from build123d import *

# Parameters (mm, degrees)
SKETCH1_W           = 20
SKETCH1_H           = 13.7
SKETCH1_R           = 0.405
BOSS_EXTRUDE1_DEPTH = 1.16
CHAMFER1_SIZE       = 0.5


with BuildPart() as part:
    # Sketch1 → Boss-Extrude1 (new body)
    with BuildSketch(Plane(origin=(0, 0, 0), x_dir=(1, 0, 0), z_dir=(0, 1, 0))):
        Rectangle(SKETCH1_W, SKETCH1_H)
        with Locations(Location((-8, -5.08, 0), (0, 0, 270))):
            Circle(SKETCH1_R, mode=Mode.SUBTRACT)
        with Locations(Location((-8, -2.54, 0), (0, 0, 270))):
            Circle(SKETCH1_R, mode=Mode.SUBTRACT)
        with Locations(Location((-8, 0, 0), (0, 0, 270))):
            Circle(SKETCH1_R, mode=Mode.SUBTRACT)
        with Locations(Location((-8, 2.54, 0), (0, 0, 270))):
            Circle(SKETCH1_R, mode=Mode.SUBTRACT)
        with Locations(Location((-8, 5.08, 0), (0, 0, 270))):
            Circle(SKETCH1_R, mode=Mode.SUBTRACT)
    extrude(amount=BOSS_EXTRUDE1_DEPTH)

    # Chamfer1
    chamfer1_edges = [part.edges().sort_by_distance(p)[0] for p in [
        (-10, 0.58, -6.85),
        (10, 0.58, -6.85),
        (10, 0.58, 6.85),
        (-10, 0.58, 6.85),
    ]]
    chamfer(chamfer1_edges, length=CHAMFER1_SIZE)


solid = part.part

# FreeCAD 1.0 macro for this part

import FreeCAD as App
import Part
import Sketcher
from FreeCAD import Vector


def edges_at(feature, points):
    """Names of the edges that pass closest to the given points."""
    edges = feature.Shape.Edges
    near = lambda p: min(range(len(edges)), key=lambda i: edges[i].distToShape(Part.Vertex(*p))[0])
    return sorted({f"Edge{near(p) + 1}" for p in points})


def add_polygon(sketch, points):
    """Adds a closed chain of lines whose ends are joined by coincident constraints."""
    first, n = sketch.GeometryCount, len(points)
    for a, b in zip(points, points[1:] + points[:1]):
        sketch.addGeometry(Part.LineSegment(App.Vector(*a, 0), App.Vector(*b, 0)), False)
    for i in range(n):
        sketch.addConstraint(Sketcher.Constraint("Coincident", first + i, 2, first + (i + 1) % n, 1))

doc = App.newDocument("Part")
params = doc.addObject("Spreadsheet::Sheet", "Params")
for row, (alias, value) in enumerate([
    ("sketch1_diameter", "0.81 mm"),
    ("sketch1_width", "20 mm"),
    ("sketch1_height", "13.7 mm"),
    ("pad1_length", "1.16 mm"),
    ("chamfer_size", "0.5 mm"),
], start=1):
    params.set(f"A{row}", alias)
    params.set(f"B{row}", "=" + value)
    params.setAlias(f"B{row}", alias)

body = doc.addObject("PartDesign::Body", "Body")

# Sketch on XZ plane
sketch1 = body.newObject("Sketcher::SketchObject", "Sketch")
sketch1.AttachmentSupport = (doc.getObject("XZ_Plane"), [""])
sketch1.MapMode = "FlatFace"
add_polygon(sketch1, [(-10, -6.85), (-10, 6.85), (10, 6.85), (10, -6.85)])  # lines 0-3
sketch1.addGeometry(Part.Circle(Vector(-8, 5.08, 0), Vector(0, 0, 1), 0.41), False)  # 4
sketch1.addGeometry(Part.Circle(Vector(-8, 2.54, 0), Vector(0, 0, 1), 0.41), False)  # 5
sketch1.addGeometry(Part.Circle(Vector(-8, 0, 0), Vector(0, 0, 1), 0.41), False)  # 6
sketch1.addGeometry(Part.Circle(Vector(-8, -2.54, 0), Vector(0, 0, 1), 0.41), False)  # 7
sketch1.addGeometry(Part.Circle(Vector(-8, -5.08, 0), Vector(0, 0, 1), 0.41), False)  # 8
sketch1.addConstraint(Sketcher.Constraint("Vertical", 0))
sketch1.addConstraint(Sketcher.Constraint("Horizontal", 1))
sketch1.addConstraint(Sketcher.Constraint("Vertical", 2))
sketch1.addConstraint(Sketcher.Constraint("Horizontal", 3))
sketch1.addConstraint(Sketcher.Constraint("Equal", 4, 5))
sketch1.addConstraint(Sketcher.Constraint("Equal", 5, 6))
sketch1.addConstraint(Sketcher.Constraint("Equal", 6, 7))
sketch1.addConstraint(Sketcher.Constraint("Equal", 7, 8))
sketch1.addConstraint(Sketcher.Constraint("Symmetric", 0, 2, 2, 2, -1, 1))
sketch1.addConstraint(Sketcher.Constraint("Symmetric", 5, 3, 7, 3, -1))
sketch1.addConstraint(Sketcher.Constraint("Symmetric", 4, 3, 8, 3, -1))
sketch1.addConstraint(Sketcher.Constraint("PointOnObject", 6, 3, -1))
sketch1.addConstraint(Sketcher.Constraint("Vertical", 4, 3, 5, 3))
sketch1.addConstraint(Sketcher.Constraint("Vertical", 5, 3, 6, 3))
sketch1.addConstraint(Sketcher.Constraint("Diameter", 4, 0.81))
sketch1.addConstraint(Sketcher.Constraint("DistanceX", 1, 1, 1, 2, 20.0))
sketch1.addConstraint(Sketcher.Constraint("DistanceY", 0, 1, 0, 2, 13.7))
sketch1.addConstraint(Sketcher.Constraint("DistanceX", 4, 3, -1, 1, 8.0))
sketch1.addConstraint(Sketcher.Constraint("DistanceY", -1, 1, 4, 3, 5.08))
sketch1.addConstraint(Sketcher.Constraint("DistanceY", -1, 1, 5, 3, 2.54))
sketch1.setExpression("Constraints[18]", "Params.sketch1_diameter")
sketch1.setExpression("Constraints[19]", "Params.sketch1_width")
sketch1.setExpression("Constraints[20]", "Params.sketch1_height")
pad1 = body.newObject("PartDesign::Pad", "Pad")
pad1.Profile = sketch1
pad1.setExpression("Length", "Params.pad1_length")
pad1.Reversed = True
doc.recompute()

chamfer = body.newObject("PartDesign::Chamfer", "Chamfer")
chamfer.Base = (pad1, edges_at(pad1, [
    (-10, 0.58, -6.85),
    (10, 0.58, -6.85),
    (10, 0.58, 6.85),
    (-10, 0.58, 6.85),
]))
chamfer.setExpression("Size", "Params.chamfer_size")

doc.recompute()
